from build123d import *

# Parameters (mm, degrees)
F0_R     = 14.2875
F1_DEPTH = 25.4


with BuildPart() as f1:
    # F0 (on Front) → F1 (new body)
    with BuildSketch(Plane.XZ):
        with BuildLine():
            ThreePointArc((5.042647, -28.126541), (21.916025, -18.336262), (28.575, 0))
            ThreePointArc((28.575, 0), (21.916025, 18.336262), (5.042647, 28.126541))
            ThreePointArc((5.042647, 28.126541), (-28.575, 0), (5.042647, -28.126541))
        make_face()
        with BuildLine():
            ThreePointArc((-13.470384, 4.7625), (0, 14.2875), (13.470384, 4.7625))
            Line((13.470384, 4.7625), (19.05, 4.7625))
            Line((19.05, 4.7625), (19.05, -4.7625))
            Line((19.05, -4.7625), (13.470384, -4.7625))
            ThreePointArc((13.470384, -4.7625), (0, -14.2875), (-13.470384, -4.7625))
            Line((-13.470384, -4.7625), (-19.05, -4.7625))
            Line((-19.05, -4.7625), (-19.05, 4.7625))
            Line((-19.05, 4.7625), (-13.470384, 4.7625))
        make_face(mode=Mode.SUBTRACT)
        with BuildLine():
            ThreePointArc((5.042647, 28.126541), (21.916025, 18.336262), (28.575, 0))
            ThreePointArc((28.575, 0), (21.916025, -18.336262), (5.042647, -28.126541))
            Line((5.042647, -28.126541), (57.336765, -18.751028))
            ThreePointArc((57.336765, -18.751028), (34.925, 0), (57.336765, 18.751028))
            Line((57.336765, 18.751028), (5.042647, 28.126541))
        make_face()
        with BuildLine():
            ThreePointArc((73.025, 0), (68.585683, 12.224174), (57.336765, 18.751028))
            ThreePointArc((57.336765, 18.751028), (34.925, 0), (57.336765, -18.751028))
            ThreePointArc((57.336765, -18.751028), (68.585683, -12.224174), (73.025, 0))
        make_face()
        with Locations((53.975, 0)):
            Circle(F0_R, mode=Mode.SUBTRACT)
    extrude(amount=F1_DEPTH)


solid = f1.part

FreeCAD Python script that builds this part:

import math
import FreeCAD as App
import Part
import Sketcher

V = App.Vector
Q = App.Units.Quantity

doc = App.newDocument("Part")
params = doc.addObject("Spreadsheet::Sheet", "Params")
for row, (alias, value) in enumerate([
    ("sketch1_radius", "0.7500001 in"),
    ("sketch1_diameter", "1.125 in"),
    ("sketch1_radius2", "1.125 in"),
    ("sketch1_height", "0.375 in"),
    ("pad1_length", "1 in"),
], start=1):
    params.set(f"A{row}", alias)
    params.set(f"B{row}", "=" + value)
    params.setAlias(f"B{row}", alias)

body = doc.addObject("PartDesign::Body", "Body")

# Sketch on XZ plane
sketch1 = doc.addObject("Sketcher::SketchObject", "Sketch")
body.addObject(sketch1)
sketch1.AttachmentSupport = (doc.XZ_Plane, [""])
sketch1.MapMode = "FlatFace"
sketch1.addGeometry(Part.ArcOfCircle(Part.Circle(V(0, 0, 0), V(0, 0, 1), 29), math.radians(80), math.radians(280)), False)
sketch1.addGeometry(Part.LineSegment(V(5, -28, 0), V(57, -19, 0)), False)
sketch1.addGeometry(Part.ArcOfCircle(Part.Circle(V(54, 0, 0), V(0, 0, 1), 19), math.radians(-80), math.radians(0)), False)
sketch1.addGeometry(Part.ArcOfCircle(Part.Circle(V(54, 0, 0), V(0, 0, 1), 19), math.radians(0), math.radians(80)), False)
sketch1.addGeometry(Part.LineSegment(V(57, 19, 0), V(5, 28, 0)), False)
sketch1.addGeometry(Part.LineSegment(V(-19, 5, 0), V(-13, 5, 0)), False)
sketch1.addGeometry(Part.ArcOfCircle(Part.Circle(V(0, 0, 0), V(0, 0, 1), 14), math.radians(19), math.radians(161)), False)
sketch1.addGeometry(Part.LineSegment(V(13, 5, 0), V(19, 5, 0)), False)
sketch1.addGeometry(Part.LineSegment(V(19, 5, 0), V(19, -5, 0)), False)
sketch1.addGeometry(Part.LineSegment(V(19, -5, 0), V(13, -5, 0)), False)
sketch1.addGeometry(Part.ArcOfCircle(Part.Circle(V(0, 0, 0), V(0, 0, 1), 14), math.radians(-161), math.radians(-19)), False)
sketch1.addGeometry(Part.LineSegment(V(-13, -5, 0), V(-19, -5, 0)), False)
sketch1.addGeometry(Part.LineSegment(V(-19, -5, 0), V(-19, 5, 0)), False)
sketch1.addGeometry(Part.Circle(V(54, 0, 0), V(0, 0, 1), 14), False)
sketch1.addConstraint(Sketcher.Constraint("Tangent", 0, 2, 1, 1))
sketch1.addConstraint(Sketcher.Constraint("Tangent", 1, 2, 2, 1))
sketch1.addConstraint(Sketcher.Constraint("Tangent", 2, 2, 3, 1))
sketch1.addConstraint(Sketcher.Constraint("Tangent", 3, 2, 4, 1))
sketch1.addConstraint(Sketcher.Constraint("Tangent", 4, 2, 0, 1))
sketch1.addConstraint(Sketcher.Constraint("Coincident", 5, 2, 6, 2))
sketch1.addConstraint(Sketcher.Constraint("Coincident", 6, 1, 7, 1))
sketch1.addConstraint(Sketcher.Constraint("Coincident", 7, 2, 8, 1))
sketch1.addConstraint(Sketcher.Constraint("Coincident", 8, 2, 9, 1))
sketch1.addConstraint(Sketcher.Constraint("Coincident", 9, 2, 10, 2))
sketch1.addConstraint(Sketcher.Constraint("Coincident", 10, 1, 11, 1))
sketch1.addConstraint(Sketcher.Constraint("Coincident", 11, 2, 12, 1))
sketch1.addConstraint(Sketcher.Constraint("Coincident", 12, 2, 5, 1))
sketch1.addConstraint(Sketcher.Constraint("Horizontal", 5))
sketch1.addConstraint(Sketcher.Constraint("Horizontal", 7))
sketch1.addConstraint(Sketcher.Constraint("Vertical", 8))
sketch1.addConstraint(Sketcher.Constraint("Horizontal", 9))
sketch1.addConstraint(Sketcher.Constraint("Horizontal", 11))
sketch1.addConstraint(Sketcher.Constraint("Vertical", 12))
sketch1.addConstraint(Sketcher.Constraint("Coincident", 0, 3, -1, 1))
sketch1.addConstraint(Sketcher.Constraint("Coincident", 6, 3, -1, 1))
sketch1.addConstraint(Sketcher.Constraint("Coincident", 10, 3, -1, 1))
sketch1.addConstraint(Sketcher.Constraint("Coincident", 13, 3, 2, 3))
sketch1.addConstraint(Sketcher.Constraint("Equal", 2, 3))
sketch1.addConstraint(Sketcher.Constraint("Equal", 6, 10))
sketch1.addConstraint(Sketcher.Constraint("Equal", 10, 13))
sketch1.addConstraint(Sketcher.Constraint("Symmetric", 7, 2, 11, 2, -1, 1))
sketch1.addConstraint(Sketcher.Constraint("PointOnObject", 2, 3, -1))
sketch1.addConstraint(Sketcher.Constraint("PointOnObject", 2, 2, -1))
sketch1.addConstraint(Sketcher.Constraint("Horizontal", 5, 2, 6, 1))
sketch1.addConstraint(Sketcher.Constraint("Horizontal", 9, 2, 10, 1))
sketch1.addConstraint(Sketcher.Constraint("Radius", 2, Q("0.7500001 in")))
sketch1.addConstraint(Sketcher.Constraint("Diameter", 13, Q("1.125 in")))
sketch1.addConstraint(Sketcher.Constraint("Radius", 0, Q("1.125 in")))
sketch1.addConstraint(Sketcher.Constraint("DistanceY", 8, 2, 8, 1, Q("0.375 in")))
sketch1.addConstraint(Sketcher.Constraint("DistanceX", -1, 1, 7, 2, Q("0.75 in")))
sketch1.addConstraint(Sketcher.Constraint("DistanceX", -1, 1, 2, 3, Q("2.1249999 in")))
sketch1.setExpression("Constraints[31]", "Params.sketch1_radius")
sketch1.setExpression("Constraints[32]", "Params.sketch1_diameter")
sketch1.setExpression("Constraints[33]", "Params.sketch1_radius2")
sketch1.setExpression("Constraints[34]", "Params.sketch1_height")
pad1 = doc.addObject("PartDesign::Pad", "Pad")
body.addObject(pad1)
pad1.Profile = sketch1
pad1.setExpression("Length", "Params.pad1_length")

doc.recompute()
